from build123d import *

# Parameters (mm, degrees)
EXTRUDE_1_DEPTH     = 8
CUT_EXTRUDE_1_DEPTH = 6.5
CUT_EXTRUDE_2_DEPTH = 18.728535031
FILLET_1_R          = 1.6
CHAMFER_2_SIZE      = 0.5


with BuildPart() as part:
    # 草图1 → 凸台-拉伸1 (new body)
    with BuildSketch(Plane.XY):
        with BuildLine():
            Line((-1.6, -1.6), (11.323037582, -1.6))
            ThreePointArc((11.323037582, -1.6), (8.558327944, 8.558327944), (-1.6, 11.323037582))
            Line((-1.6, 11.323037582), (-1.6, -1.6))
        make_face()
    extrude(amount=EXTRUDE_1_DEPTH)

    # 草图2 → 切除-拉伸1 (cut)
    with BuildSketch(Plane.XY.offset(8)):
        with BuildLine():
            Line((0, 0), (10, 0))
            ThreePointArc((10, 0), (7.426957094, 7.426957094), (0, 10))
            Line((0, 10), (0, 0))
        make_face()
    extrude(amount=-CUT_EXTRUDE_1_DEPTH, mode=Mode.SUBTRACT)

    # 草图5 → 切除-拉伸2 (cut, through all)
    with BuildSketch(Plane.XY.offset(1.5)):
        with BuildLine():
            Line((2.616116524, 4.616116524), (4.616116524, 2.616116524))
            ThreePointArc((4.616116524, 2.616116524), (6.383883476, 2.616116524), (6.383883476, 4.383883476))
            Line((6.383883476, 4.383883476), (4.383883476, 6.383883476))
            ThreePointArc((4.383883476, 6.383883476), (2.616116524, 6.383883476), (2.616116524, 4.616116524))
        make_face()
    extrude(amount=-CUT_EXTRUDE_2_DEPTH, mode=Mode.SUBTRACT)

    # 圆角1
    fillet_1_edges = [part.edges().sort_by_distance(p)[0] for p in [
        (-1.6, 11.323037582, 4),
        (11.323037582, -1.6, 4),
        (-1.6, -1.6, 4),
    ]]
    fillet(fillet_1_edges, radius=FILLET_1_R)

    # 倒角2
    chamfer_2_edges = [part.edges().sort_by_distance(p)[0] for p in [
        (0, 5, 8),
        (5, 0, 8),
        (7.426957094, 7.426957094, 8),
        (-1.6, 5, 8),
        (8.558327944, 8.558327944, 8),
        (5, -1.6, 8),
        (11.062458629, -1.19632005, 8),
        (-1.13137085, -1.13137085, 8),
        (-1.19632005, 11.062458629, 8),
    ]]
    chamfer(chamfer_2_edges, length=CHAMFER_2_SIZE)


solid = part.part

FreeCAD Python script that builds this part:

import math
import FreeCAD as App
import Part
import Sketcher
Q = App.Units.Quantity


def edges_at(feature, points):
    """Names of the edges that pass closest to the given points."""
    edges = feature.Shape.Edges
    near = lambda p: min(range(len(edges)), key=lambda i: edges[i].distToShape(Part.Vertex(*p))[0])
    return sorted({f"Edge{near(p) + 1}" for p in points})

doc = App.newDocument("Part")
params = doc.addObject("Spreadsheet::Sheet", "Params")
for row, (alias, value) in enumerate([
    ("sketch1_radius", "10.6 mm"),
    ("pad1_length", "8 mm"),
    ("sketch2_radius", "9 mm"),
    ("sketch2_width", "10 mm"),
    ("pocket1_length", "6.5 mm"),
    ("sketch3_radius", "1.25 mm"),
    ("fillet_radius", "1.6 mm"),
    ("chamfer_size", "0.5 mm"),
], start=1):
    params.set(f"A{row}", alias)
    params.set(f"B{row}", "=" + value)
    params.setAlias(f"B{row}", alias)

body = doc.addObject("PartDesign::Body", "Body")

# Sketch on XY plane
sketch1 = doc.addObject("Sketcher::SketchObject", "Sketch")
body.addObject(sketch1)
sketch1.AttachmentSupport = (doc.XY_Plane, [""])
sketch1.MapMode = "FlatFace"
sketch1.addGeometry(Part.LineSegment(App.Vector(-2, -2, 0), App.Vector(11, -2, 0)), False)
sketch1.addGeometry(Part.ArcOfCircle(Part.Circle(App.Vector(1, 1, 0), App.Vector(0, 0, 1), 11), math.radians(-15), math.radians(105)), False)
sketch1.addGeometry(Part.LineSegment(App.Vector(-2, 11, 0), App.Vector(-2, -2, 0)), False)
sketch1.addConstraint(Sketcher.Constraint("Coincident", 0, 2, 1, 1))
sketch1.addConstraint(Sketcher.Constraint("Coincident", 1, 2, 2, 1))
sketch1.addConstraint(Sketcher.Constraint("Coincident", 2, 2, 0, 1))
sketch1.addConstraint(Sketcher.Constraint("Horizontal", 0))
sketch1.addConstraint(Sketcher.Constraint("Vertical", 2))
sketch1.addConstraint(Sketcher.Constraint("Equal", 0, 2))
sketch1.addConstraint(Sketcher.Constraint("Radius", 1, 10.6))
sketch1.addConstraint(Sketcher.Constraint("DistanceY", 0, 2, -1, 1, 1.6))
sketch1.addConstraint(Sketcher.Constraint("DistanceX", 1, 2, -1, 1, 1.6))
sketch1.addConstraint(Sketcher.Constraint("DistanceX", 0, 1, 0, 2, 12.923038))
sketch1.setExpression("Constraints[6]", "Params.sketch1_radius")
pad1 = doc.addObject("PartDesign::Pad", "Pad")
body.addObject(pad1)
pad1.Profile = sketch1
pad1.setExpression("Length", "Params.pad1_length")

# Sketch on XY plane
sketch2 = doc.addObject("Sketcher::SketchObject", "Sketch001")
body.addObject(sketch2)
sketch2.AttachmentSupport = (doc.XY_Plane, [""])
sketch2.MapMode = "FlatFace"
sketch2.AttachmentOffset = App.Placement(App.Vector(0, 0, 8), App.Rotation())
sketch2.addGeometry(Part.LineSegment(App.Vector(0, 0, 0), App.Vector(10, 0, 0)), False)
sketch2.addGeometry(Part.ArcOfCircle(Part.Circle(App.Vector(1, 1, 0), App.Vector(0, 0, 1), 9), math.radians(-7), math.radians(97)), False)
sketch2.addGeometry(Part.LineSegment(App.Vector(0, 10, 0), App.Vector(0, 0, 0)), False)
sketch2.addConstraint(Sketcher.Constraint("Coincident", 0, 2, 1, 1))
sketch2.addConstraint(Sketcher.Constraint("Coincident", 1, 2, 2, 1))
sketch2.addConstraint(Sketcher.Constraint("Coincident", 2, 2, 0, 1))
sketch2.addConstraint(Sketcher.Constraint("Horizontal", 0))
sketch2.addConstraint(Sketcher.Constraint("Vertical", 2))
sketch2.addConstraint(Sketcher.Constraint("Coincident", 2, 2, -1, 1))
sketch2.addConstraint(Sketcher.Constraint("Equal", 0, 2))
sketch2.addConstraint(Sketcher.Constraint("Radius", 1, 9.0))
sketch2.addConstraint(Sketcher.Constraint("DistanceX", 0, 1, 0, 2, 10.0))
sketch2.setExpression("Constraints[7]", "Params.sketch2_radius")
sketch2.setExpression("Constraints[8]", "Params.sketch2_width")
pocket1 = doc.addObject("PartDesign::Pocket", "Pocket")
body.addObject(pocket1)
pocket1.Profile = sketch2
pocket1.setExpression("Length", "Params.pocket1_length")

# Sketch on XY plane
sketch3 = doc.addObject("Sketcher::SketchObject", "Sketch002")
body.addObject(sketch3)
sketch3.AttachmentSupport = (doc.XY_Plane, [""])
sketch3.MapMode = "FlatFace"
sketch3.AttachmentOffset = App.Placement(App.Vector(0, 0, 1.5), App.Rotation())
sketch3.addGeometry(Part.LineSegment(App.Vector(2.6, 4.6, 0), App.Vector(4.6, 2.6, 0)), False)
sketch3.addGeometry(Part.ArcOfCircle(Part.Circle(App.Vector(5.5, 3.5, 0), App.Vector(0, 0, 1), 1.2), math.radians(-135), math.radians(45)), False)
sketch3.addGeometry(Part.LineSegment(App.Vector(6.4, 4.4, 0), App.Vector(4.4, 6.4, 0)), False)
sketch3.addGeometry(Part.ArcOfCircle(Part.Circle(App.Vector(3.5, 5.5, 0), App.Vector(0, 0, 1), 1.2), math.radians(45), math.radians(225)), False)
sketch3.addConstraint(Sketcher.Constraint("Tangent", 0, 2, 1, 1))
sketch3.addConstraint(Sketcher.Constraint("Tangent", 1, 2, 2, 1))
sketch3.addConstraint(Sketcher.Constraint("Tangent", 2, 2, 3, 1))
sketch3.addConstraint(Sketcher.Constraint("Tangent", 3, 2, 0, 1))
sketch3.addConstraint(Sketcher.Constraint("Equal", 1, 3))
sketch3.addConstraint(Sketcher.Constraint("Angle", 0, Q("-45 deg")))
sketch3.addConstraint(Sketcher.Constraint("Radius", 1, 1.25))
sketch3.addConstraint(Sketcher.Constraint("DistanceX", 3, 3, 1, 3, 2.0))
sketch3.addConstraint(Sketcher.Constraint("DistanceX", -1, 1, 1, 3, 5.5))
sketch3.addConstraint(Sketcher.Constraint("DistanceY", -1, 1, 1, 3, 3.5))
sketch3.setExpression("Constraints[6]", "Params.sketch3_radius")
pocket2 = doc.addObject("PartDesign::Pocket", "Pocket001")
body.addObject(pocket2)
pocket2.Profile = sketch3
pocket2.Type = "ThroughAll"
doc.recompute()

fillet = doc.addObject("PartDesign::Fillet", "Fillet")
body.addObject(fillet)
fillet.Base = (pocket2, edges_at(pocket2, [(-1.6, 11.323, 4), (11.323, -1.6, 4), (-1.6, -1.6, 4)]))
fillet.setExpression("Radius", "Params.fillet_radius")
doc.recompute()

chamfer = doc.addObject("PartDesign::Chamfer", "Chamfer")
body.addObject(chamfer)
chamfer.Base = (fillet, edges_at(fillet, [
    (0, 5, 8),
    (5, 0, 8),
    (7.427, 7.427, 8),
    (-1.6, 5, 8),
    (8.558, 8.558, 8),
    (5, -1.6, 8),
    (11.062, -1.196, 8),
    (-1.131, -1.131, 8),
    (-1.196, 11.062, 8),
]))
chamfer.setExpression("Size", "Params.chamfer_size")

doc.recompute()
